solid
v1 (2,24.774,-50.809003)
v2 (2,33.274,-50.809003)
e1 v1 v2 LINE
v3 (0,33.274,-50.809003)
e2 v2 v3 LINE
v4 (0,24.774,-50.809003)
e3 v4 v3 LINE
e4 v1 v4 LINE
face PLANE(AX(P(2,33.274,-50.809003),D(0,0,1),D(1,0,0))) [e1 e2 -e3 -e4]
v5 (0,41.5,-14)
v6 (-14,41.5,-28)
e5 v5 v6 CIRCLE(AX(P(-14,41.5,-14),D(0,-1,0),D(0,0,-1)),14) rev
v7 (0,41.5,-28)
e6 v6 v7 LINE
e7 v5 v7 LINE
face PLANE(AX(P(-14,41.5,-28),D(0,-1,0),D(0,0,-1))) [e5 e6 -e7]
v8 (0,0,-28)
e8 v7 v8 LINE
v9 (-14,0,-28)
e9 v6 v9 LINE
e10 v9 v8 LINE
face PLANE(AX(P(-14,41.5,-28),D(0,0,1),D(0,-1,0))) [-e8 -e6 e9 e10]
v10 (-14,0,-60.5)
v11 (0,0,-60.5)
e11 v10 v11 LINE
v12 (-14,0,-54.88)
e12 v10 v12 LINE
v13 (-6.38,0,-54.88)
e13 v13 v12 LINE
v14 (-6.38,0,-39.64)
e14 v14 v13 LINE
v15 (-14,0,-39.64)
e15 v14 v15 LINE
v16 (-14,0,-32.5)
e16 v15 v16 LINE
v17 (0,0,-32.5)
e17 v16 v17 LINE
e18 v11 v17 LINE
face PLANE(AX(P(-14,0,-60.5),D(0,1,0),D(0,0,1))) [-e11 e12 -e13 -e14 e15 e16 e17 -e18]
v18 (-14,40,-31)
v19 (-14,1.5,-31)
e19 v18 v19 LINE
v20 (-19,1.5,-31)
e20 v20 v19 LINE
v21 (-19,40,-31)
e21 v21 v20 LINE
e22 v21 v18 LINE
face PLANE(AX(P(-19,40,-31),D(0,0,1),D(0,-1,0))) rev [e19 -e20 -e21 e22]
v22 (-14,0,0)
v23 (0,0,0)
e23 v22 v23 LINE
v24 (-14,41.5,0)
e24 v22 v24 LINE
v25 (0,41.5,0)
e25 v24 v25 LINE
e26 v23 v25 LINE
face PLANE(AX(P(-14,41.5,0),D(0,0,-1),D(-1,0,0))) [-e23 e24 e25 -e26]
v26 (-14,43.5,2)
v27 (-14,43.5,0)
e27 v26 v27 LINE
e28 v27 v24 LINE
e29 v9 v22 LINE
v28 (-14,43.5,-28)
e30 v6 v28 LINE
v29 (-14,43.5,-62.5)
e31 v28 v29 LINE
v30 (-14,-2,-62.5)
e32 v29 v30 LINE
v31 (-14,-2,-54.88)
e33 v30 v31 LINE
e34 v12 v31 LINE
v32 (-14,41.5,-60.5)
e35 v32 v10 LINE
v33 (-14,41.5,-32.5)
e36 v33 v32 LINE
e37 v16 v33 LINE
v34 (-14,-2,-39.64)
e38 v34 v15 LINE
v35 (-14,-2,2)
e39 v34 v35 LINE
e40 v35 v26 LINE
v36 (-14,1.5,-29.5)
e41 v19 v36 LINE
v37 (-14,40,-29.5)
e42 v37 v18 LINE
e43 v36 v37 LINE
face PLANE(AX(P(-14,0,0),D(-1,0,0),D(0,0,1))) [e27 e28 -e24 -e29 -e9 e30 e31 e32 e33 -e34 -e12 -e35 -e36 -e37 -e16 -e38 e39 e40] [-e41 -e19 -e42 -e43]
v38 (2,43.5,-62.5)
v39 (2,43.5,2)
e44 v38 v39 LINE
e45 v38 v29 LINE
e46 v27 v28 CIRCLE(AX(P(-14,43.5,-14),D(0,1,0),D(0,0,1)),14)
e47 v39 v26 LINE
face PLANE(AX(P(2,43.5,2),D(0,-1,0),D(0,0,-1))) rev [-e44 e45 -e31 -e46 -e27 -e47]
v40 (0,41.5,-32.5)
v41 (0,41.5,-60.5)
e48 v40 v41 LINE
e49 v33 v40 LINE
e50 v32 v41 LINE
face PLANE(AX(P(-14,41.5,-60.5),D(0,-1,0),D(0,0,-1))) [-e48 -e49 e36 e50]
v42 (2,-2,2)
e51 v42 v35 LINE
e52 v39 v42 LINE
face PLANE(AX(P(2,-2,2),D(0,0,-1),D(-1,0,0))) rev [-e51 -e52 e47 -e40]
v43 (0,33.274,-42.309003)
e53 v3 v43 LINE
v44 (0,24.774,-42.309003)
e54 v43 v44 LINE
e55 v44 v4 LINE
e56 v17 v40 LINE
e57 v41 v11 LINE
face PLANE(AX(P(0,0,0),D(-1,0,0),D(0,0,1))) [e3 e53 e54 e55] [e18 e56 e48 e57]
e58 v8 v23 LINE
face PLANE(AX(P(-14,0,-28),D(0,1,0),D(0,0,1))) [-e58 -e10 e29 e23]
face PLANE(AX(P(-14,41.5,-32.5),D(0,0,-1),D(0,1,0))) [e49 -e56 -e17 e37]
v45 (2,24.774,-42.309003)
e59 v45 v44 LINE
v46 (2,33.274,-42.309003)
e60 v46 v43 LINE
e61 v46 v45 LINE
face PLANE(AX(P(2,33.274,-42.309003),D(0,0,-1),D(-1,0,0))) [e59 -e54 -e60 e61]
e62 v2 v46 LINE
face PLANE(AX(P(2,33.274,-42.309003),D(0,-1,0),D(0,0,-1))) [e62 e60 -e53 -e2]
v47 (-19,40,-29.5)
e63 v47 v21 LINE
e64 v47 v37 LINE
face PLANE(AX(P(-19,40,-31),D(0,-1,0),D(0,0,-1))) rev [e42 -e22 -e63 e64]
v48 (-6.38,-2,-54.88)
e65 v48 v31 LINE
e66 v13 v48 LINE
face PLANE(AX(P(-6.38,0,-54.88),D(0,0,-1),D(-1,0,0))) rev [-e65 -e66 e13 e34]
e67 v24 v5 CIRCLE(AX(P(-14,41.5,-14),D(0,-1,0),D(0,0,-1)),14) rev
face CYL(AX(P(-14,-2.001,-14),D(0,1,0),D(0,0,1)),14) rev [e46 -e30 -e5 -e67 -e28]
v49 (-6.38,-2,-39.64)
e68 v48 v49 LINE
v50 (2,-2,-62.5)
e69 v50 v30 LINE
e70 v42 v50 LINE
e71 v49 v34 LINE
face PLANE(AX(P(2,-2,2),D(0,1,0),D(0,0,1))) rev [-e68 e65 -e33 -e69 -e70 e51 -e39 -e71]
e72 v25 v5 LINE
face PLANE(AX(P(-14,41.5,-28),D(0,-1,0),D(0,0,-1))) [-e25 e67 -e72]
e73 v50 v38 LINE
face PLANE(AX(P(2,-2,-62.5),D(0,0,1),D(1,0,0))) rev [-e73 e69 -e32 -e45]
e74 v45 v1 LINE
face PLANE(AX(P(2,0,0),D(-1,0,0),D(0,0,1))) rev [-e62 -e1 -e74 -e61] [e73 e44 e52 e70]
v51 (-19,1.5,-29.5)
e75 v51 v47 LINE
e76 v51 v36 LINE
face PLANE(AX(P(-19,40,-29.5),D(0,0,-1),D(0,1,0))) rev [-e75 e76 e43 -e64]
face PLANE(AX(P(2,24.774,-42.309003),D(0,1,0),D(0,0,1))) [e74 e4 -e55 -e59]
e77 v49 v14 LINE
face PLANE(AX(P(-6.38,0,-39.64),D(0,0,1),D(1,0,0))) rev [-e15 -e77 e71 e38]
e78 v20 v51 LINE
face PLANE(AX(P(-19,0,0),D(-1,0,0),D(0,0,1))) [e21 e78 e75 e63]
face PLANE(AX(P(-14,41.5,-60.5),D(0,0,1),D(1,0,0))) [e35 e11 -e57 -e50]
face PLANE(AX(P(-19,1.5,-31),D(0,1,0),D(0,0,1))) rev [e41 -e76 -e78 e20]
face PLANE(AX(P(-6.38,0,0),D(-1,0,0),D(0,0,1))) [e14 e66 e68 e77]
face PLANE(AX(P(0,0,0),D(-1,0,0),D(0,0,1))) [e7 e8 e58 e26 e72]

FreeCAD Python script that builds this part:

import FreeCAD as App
import Part
import Sketcher
Q = App.Units.Quantity

doc = App.newDocument("Part")
body = doc.addObject("PartDesign::Body", "Body")

# Sketch on YZ plane
sketch1 = doc.addObject("Sketcher::SketchObject", "Sketch")
body.addObject(sketch1)
sketch1.AttachmentSupport = (doc.YZ_Plane, [""])
sketch1.MapMode = "FlatFace"
sketch1.addGeometry(Part.LineSegment(App.Vector(44, 2, 0), App.Vector(-2, 2, 0)), False)
sketch1.addGeometry(Part.LineSegment(App.Vector(-2, 2, 0), App.Vector(-2, -62, 0)), False)
sketch1.addGeometry(Part.LineSegment(App.Vector(-2, -62, 0), App.Vector(44, -62, 0)), False)
sketch1.addGeometry(Part.LineSegment(App.Vector(44, -62, 0), App.Vector(44, 2, 0)), False)
sketch1.addGeometry(Part.LineSegment(App.Vector(25, -51, 0), App.Vector(25, -42, 0)), False)
sketch1.addGeometry(Part.LineSegment(App.Vector(25, -42, 0), App.Vector(33, -42, 0)), False)
sketch1.addGeometry(Part.LineSegment(App.Vector(33, -42, 0), App.Vector(33, -51, 0)), False)
sketch1.addGeometry(Part.LineSegment(App.Vector(33, -51, 0), App.Vector(25, -51, 0)), False)
sketch1.addConstraint(Sketcher.Constraint("Coincident", 0, 2, 1, 1))
sketch1.addConstraint(Sketcher.Constraint("Coincident", 1, 2, 2, 1))
sketch1.addConstraint(Sketcher.Constraint("Coincident", 2, 2, 3, 1))
sketch1.addConstraint(Sketcher.Constraint("Coincident", 3, 2, 0, 1))
sketch1.addConstraint(Sketcher.Constraint("Coincident", 4, 2, 5, 1))
sketch1.addConstraint(Sketcher.Constraint("Coincident", 5, 2, 6, 1))
sketch1.addConstraint(Sketcher.Constraint("Coincident", 6, 2, 7, 1))
sketch1.addConstraint(Sketcher.Constraint("Coincident", 7, 2, 4, 1))
sketch1.addConstraint(Sketcher.Constraint("Horizontal", 0))
sketch1.addConstraint(Sketcher.Constraint("Vertical", 1))
sketch1.addConstraint(Sketcher.Constraint("Horizontal", 2))
sketch1.addConstraint(Sketcher.Constraint("Vertical", 3))
sketch1.addConstraint(Sketcher.Constraint("Vertical", 4))
sketch1.addConstraint(Sketcher.Constraint("Horizontal", 5))
sketch1.addConstraint(Sketcher.Constraint("Vertical", 6))
sketch1.addConstraint(Sketcher.Constraint("Horizontal", 7))
sketch1.addConstraint(Sketcher.Constraint("Equal", 7, 4))
sketch1.addConstraint(Sketcher.Constraint("DistanceX", 0, 2, 0, 1, Q("45.5 mm")))
sketch1.addConstraint(Sketcher.Constraint("DistanceX", 5, 1, 5, 2, Q("8.5 mm")))
sketch1.addConstraint(Sketcher.Constraint("DistanceY", 1, 2, 1, 1, Q("64.5 mm")))
sketch1.addConstraint(Sketcher.Constraint("DistanceX", 0, 2, -1, 1, Q("2 mm")))
sketch1.addConstraint(Sketcher.Constraint("DistanceY", -1, 1, 0, 2, Q("2 mm")))
sketch1.addConstraint(Sketcher.Constraint("DistanceX", -1, 1, 4, 2, Q("24.774 mm")))
sketch1.addConstraint(Sketcher.Constraint("DistanceY", 4, 2, -1, 1, Q("42.309003 mm")))
pad1 = doc.addObject("PartDesign::Pad", "Pad")
body.addObject(pad1)
pad1.Profile = sketch1
pad1.Length = 2

# Sketch on YZ plane
sketch2 = doc.addObject("Sketcher::SketchObject", "Sketch001")
body.addObject(sketch2)
sketch2.AttachmentSupport = (doc.YZ_Plane, [""])
sketch2.MapMode = "FlatFace"
sketch2.addGeometry(Part.LineSegment(App.Vector(44, -62, 0), App.Vector(-2, -62, 0)), False)
sketch2.addGeometry(Part.LineSegment(App.Vector(-2, -62, 0), App.Vector(-2, 2, 0)), False)
sketch2.addGeometry(Part.LineSegment(App.Vector(-2, 2, 0), App.Vector(44, 2, 0)), False)
sketch2.addGeometry(Part.LineSegment(App.Vector(44, 2, 0), App.Vector(44, -62, 0)), False)
sketch2.addGeometry(Part.LineSegment(App.Vector(0, -32, 0), App.Vector(0, -60, 0)), False)
sketch2.addGeometry(Part.LineSegment(App.Vector(0, -60, 0), App.Vector(42, -60, 0)), False)
sketch2.addGeometry(Part.LineSegment(App.Vector(42, -60, 0), App.Vector(42, -32, 0)), False)
sketch2.addGeometry(Part.LineSegment(App.Vector(42, -32, 0), App.Vector(0, -32, 0)), False)
sketch2.addGeometry(Part.LineSegment(App.Vector(0, 0, 0), App.Vector(0, -28, 0)), False)
sketch2.addGeometry(Part.LineSegment(App.Vector(0, -28, 0), App.Vector(42, -28, 0)), False)
sketch2.addGeometry(Part.LineSegment(App.Vector(42, -28, 0), App.Vector(42, 0, 0)), False)
sketch2.addGeometry(Part.LineSegment(App.Vector(42, 0, 0), App.Vector(0, 0, 0)), False)
sketch2.addConstraint(Sketcher.Constraint("Coincident", 0, 2, 1, 1))
sketch2.addConstraint(Sketcher.Constraint("Coincident", 1, 2, 2, 1))
sketch2.addConstraint(Sketcher.Constraint("Coincident", 2, 2, 3, 1))
sketch2.addConstraint(Sketcher.Constraint("Coincident", 3, 2, 0, 1))
sketch2.addConstraint(Sketcher.Constraint("Coincident", 4, 2, 5, 1))
sketch2.addConstraint(Sketcher.Constraint("Coincident", 5, 2, 6, 1))
sketch2.addConstraint(Sketcher.Constraint("Coincident", 6, 2, 7, 1))
sketch2.addConstraint(Sketcher.Constraint("Coincident", 7, 2, 4, 1))
sketch2.addConstraint(Sketcher.Constraint("Coincident", 8, 2, 9, 1))
sketch2.addConstraint(Sketcher.Constraint("Coincident", 9, 2, 10, 1))
sketch2.addConstraint(Sketcher.Constraint("Coincident", 10, 2, 11, 1))
sketch2.addConstraint(Sketcher.Constraint("Coincident", 11, 2, 8, 1))
sketch2.addConstraint(Sketcher.Constraint("Horizontal", 0))
sketch2.addConstraint(Sketcher.Constraint("Vertical", 1))
sketch2.addConstraint(Sketcher.Constraint("Horizontal", 2))
sketch2.addConstraint(Sketcher.Constraint("Vertical", 3))
sketch2.addConstraint(Sketcher.Constraint("Vertical", 4))
sketch2.addConstraint(Sketcher.Constraint("Horizontal", 5))
sketch2.addConstraint(Sketcher.Constraint("Vertical", 6))
sketch2.addConstraint(Sketcher.Constraint("Horizontal", 7))
sketch2.addConstraint(Sketcher.Constraint("Vertical", 8))
sketch2.addConstraint(Sketcher.Constraint("Horizontal", 9))
sketch2.addConstraint(Sketcher.Constraint("Vertical", 10))
sketch2.addConstraint(Sketcher.Constraint("Horizontal", 11))
sketch2.addConstraint(Sketcher.Constraint("Coincident", 11, 2, -1, 1))
sketch2.addConstraint(Sketcher.Constraint("PointOnObject", 4, 2, -2))
sketch2.addConstraint(Sketcher.Constraint("Vertical", 6, 2, 9, 2))
sketch2.addConstraint(Sketcher.Constraint("Equal", 6, 8))
sketch2.addConstraint(Sketcher.Constraint("DistanceY", 4, 2, 4, 1, Q("28 mm")))
sketch2.addConstraint(Sketcher.Constraint("DistanceX", 0, 2, 0, 1, Q("45.5 mm")))
sketch2.addConstraint(Sketcher.Constraint("DistanceX", 5, 1, 5, 2, Q("41.5 mm")))
sketch2.addConstraint(Sketcher.Constraint("DistanceY", 1, 1, 1, 2, Q("64.5 mm")))
sketch2.addConstraint(Sketcher.Constraint("DistanceX", 0, 2, -1, 1, Q("2 mm")))
sketch2.addConstraint(Sketcher.Constraint("DistanceY", -1, 1, 1, 2, Q("2 mm")))
sketch2.addConstraint(Sketcher.Constraint("DistanceY", 0, 2, 4, 2, Q("2 mm")))
pad2 = doc.addObject("PartDesign::Pad", "Pad001")
body.addObject(pad2)
pad2.Profile = sketch2
pad2.Length = 14
pad2.Reversed = True

# Sketch on XZ plane
sketch3 = doc.addObject("Sketcher::SketchObject", "Sketch002")
body.addObject(sketch3)
sketch3.AttachmentSupport = (doc.XZ_Plane, [""])
sketch3.MapMode = "FlatFace"
sketch3.AttachmentOffset = App.Placement(App.Vector(0, 0, -43.5), App.Rotation())
sketch3.addGeometry(Part.Circle(App.Vector(-14, -14, 0), App.Vector(0, 0, 1), 14), False)
sketch3.addConstraint(Sketcher.Constraint("Diameter", 0, Q("28 mm")))
sketch3.addConstraint(Sketcher.Constraint("DistanceX", 0, 3, -1, 1, Q("14 mm")))
sketch3.addConstraint(Sketcher.Constraint("DistanceY", 0, 3, -1, 1, Q("14 mm")))
pocket1 = doc.addObject("PartDesign::Pocket", "Pocket")
body.addObject(pocket1)
pocket1.Profile = sketch3
pocket1.Type = "UpToFirst"
pocket1.Reversed = True

# Sketch on YZ plane
sketch4 = doc.addObject("Sketcher::SketchObject", "Sketch003")
body.addObject(sketch4)
sketch4.AttachmentSupport = (doc.YZ_Plane, [""])
sketch4.MapMode = "FlatFace"
sketch4.AttachmentOffset = App.Placement(App.Vector(0, 0, -14), App.Rotation())
sketch4.addGeometry(Part.LineSegment(App.Vector(40, -31, 0), App.Vector(1.5, -31, 0)), False)
sketch4.addGeometry(Part.LineSegment(App.Vector(1.5, -31, 0), App.Vector(1.5, -29.5, 0)), False)
sketch4.addGeometry(Part.LineSegment(App.Vector(1.5, -29.5, 0), App.Vector(40, -29.5, 0)), False)
sketch4.addGeometry(Part.LineSegment(App.Vector(40, -29.5, 0), App.Vector(40, -31, 0)), False)
sketch4.addConstraint(Sketcher.Constraint("Coincident", 0, 2, 1, 1))
sketch4.addConstraint(Sketcher.Constraint("Coincident", 1, 2, 2, 1))
sketch4.addConstraint(Sketcher.Constraint("Coincident", 2, 2, 3, 1))
sketch4.addConstraint(Sketcher.Constraint("Coincident", 3, 2, 0, 1))
sketch4.addConstraint(Sketcher.Constraint("Horizontal", 0))
sketch4.addConstraint(Sketcher.Constraint("Vertical", 1))
sketch4.addConstraint(Sketcher.Constraint("Horizontal", 2))
sketch4.addConstraint(Sketcher.Constraint("Vertical", 3))
sketch4.addConstraint(Sketcher.Constraint("DistanceX", 0, 2, 0, 1, Q("38.5 mm")))
sketch4.addConstraint(Sketcher.Constraint("DistanceY", 1, 1, 1, 2, Q("1.5 mm")))
sketch4.addConstraint(Sketcher.Constraint("DistanceY", 0, 2, -1, 1, Q("31 mm")))
sketch4.addConstraint(Sketcher.Constraint("DistanceX", -1, 1, 2, 2, Q("40 mm")))
pad3 = doc.addObject("PartDesign::Pad", "Pad002")
body.addObject(pad3)
pad3.Profile = sketch4
pad3.Length = 5
pad3.Reversed = True

# Sketch on YZ plane
sketch5 = doc.addObject("Sketcher::SketchObject", "Sketch004")
body.addObject(sketch5)
sketch5.AttachmentSupport = (doc.YZ_Plane, [""])
sketch5.MapMode = "FlatFace"
sketch5.AttachmentOffset = App.Placement(App.Vector(0, 0, -14), App.Rotation())
sketch5.addGeometry(Part.LineSegment(App.Vector(0, -54.9, 0), App.Vector(-2, -54.9, 0)), False)
sketch5.addGeometry(Part.LineSegment(App.Vector(-2, -54.9, 0), App.Vector(-2, -39.6, 0)), False)
sketch5.addGeometry(Part.LineSegment(App.Vector(-2, -39.6, 0), App.Vector(0, -39.6, 0)), False)
sketch5.addGeometry(Part.LineSegment(App.Vector(0, -39.6, 0), App.Vector(0, -54.9, 0)), False)
sketch5.addConstraint(Sketcher.Constraint("Coincident", 0, 2, 1, 1))
sketch5.addConstraint(Sketcher.Constraint("Coincident", 1, 2, 2, 1))
sketch5.addConstraint(Sketcher.Constraint("Coincident", 2, 2, 3, 1))
sketch5.addConstraint(Sketcher.Constraint("Coincident", 3, 2, 0, 1))
sketch5.addConstraint(Sketcher.Constraint("Horizontal", 0))
sketch5.addConstraint(Sketcher.Constraint("Vertical", 1))
sketch5.addConstraint(Sketcher.Constraint("Horizontal", 2))
sketch5.addConstraint(Sketcher.Constraint("Vertical", 3))
sketch5.addConstraint(Sketcher.Constraint("PointOnObject", 2, 2, -2))
sketch5.addConstraint(Sketcher.Constraint("DistanceX", 0, 2, 0, 1, Q("2 mm")))
sketch5.addConstraint(Sketcher.Constraint("DistanceY", 1, 1, 1, 2, Q("15.24 mm")))
sketch5.addConstraint(Sketcher.Constraint("DistanceY", 0, 2, -1, 1, Q("54.88 mm")))
pocket2 = doc.addObject("PartDesign::Pocket", "Pocket001")
body.addObject(pocket2)
pocket2.Profile = sketch5
pocket2.Length = 7.62
pocket2.Reversed = True

doc.recompute()
